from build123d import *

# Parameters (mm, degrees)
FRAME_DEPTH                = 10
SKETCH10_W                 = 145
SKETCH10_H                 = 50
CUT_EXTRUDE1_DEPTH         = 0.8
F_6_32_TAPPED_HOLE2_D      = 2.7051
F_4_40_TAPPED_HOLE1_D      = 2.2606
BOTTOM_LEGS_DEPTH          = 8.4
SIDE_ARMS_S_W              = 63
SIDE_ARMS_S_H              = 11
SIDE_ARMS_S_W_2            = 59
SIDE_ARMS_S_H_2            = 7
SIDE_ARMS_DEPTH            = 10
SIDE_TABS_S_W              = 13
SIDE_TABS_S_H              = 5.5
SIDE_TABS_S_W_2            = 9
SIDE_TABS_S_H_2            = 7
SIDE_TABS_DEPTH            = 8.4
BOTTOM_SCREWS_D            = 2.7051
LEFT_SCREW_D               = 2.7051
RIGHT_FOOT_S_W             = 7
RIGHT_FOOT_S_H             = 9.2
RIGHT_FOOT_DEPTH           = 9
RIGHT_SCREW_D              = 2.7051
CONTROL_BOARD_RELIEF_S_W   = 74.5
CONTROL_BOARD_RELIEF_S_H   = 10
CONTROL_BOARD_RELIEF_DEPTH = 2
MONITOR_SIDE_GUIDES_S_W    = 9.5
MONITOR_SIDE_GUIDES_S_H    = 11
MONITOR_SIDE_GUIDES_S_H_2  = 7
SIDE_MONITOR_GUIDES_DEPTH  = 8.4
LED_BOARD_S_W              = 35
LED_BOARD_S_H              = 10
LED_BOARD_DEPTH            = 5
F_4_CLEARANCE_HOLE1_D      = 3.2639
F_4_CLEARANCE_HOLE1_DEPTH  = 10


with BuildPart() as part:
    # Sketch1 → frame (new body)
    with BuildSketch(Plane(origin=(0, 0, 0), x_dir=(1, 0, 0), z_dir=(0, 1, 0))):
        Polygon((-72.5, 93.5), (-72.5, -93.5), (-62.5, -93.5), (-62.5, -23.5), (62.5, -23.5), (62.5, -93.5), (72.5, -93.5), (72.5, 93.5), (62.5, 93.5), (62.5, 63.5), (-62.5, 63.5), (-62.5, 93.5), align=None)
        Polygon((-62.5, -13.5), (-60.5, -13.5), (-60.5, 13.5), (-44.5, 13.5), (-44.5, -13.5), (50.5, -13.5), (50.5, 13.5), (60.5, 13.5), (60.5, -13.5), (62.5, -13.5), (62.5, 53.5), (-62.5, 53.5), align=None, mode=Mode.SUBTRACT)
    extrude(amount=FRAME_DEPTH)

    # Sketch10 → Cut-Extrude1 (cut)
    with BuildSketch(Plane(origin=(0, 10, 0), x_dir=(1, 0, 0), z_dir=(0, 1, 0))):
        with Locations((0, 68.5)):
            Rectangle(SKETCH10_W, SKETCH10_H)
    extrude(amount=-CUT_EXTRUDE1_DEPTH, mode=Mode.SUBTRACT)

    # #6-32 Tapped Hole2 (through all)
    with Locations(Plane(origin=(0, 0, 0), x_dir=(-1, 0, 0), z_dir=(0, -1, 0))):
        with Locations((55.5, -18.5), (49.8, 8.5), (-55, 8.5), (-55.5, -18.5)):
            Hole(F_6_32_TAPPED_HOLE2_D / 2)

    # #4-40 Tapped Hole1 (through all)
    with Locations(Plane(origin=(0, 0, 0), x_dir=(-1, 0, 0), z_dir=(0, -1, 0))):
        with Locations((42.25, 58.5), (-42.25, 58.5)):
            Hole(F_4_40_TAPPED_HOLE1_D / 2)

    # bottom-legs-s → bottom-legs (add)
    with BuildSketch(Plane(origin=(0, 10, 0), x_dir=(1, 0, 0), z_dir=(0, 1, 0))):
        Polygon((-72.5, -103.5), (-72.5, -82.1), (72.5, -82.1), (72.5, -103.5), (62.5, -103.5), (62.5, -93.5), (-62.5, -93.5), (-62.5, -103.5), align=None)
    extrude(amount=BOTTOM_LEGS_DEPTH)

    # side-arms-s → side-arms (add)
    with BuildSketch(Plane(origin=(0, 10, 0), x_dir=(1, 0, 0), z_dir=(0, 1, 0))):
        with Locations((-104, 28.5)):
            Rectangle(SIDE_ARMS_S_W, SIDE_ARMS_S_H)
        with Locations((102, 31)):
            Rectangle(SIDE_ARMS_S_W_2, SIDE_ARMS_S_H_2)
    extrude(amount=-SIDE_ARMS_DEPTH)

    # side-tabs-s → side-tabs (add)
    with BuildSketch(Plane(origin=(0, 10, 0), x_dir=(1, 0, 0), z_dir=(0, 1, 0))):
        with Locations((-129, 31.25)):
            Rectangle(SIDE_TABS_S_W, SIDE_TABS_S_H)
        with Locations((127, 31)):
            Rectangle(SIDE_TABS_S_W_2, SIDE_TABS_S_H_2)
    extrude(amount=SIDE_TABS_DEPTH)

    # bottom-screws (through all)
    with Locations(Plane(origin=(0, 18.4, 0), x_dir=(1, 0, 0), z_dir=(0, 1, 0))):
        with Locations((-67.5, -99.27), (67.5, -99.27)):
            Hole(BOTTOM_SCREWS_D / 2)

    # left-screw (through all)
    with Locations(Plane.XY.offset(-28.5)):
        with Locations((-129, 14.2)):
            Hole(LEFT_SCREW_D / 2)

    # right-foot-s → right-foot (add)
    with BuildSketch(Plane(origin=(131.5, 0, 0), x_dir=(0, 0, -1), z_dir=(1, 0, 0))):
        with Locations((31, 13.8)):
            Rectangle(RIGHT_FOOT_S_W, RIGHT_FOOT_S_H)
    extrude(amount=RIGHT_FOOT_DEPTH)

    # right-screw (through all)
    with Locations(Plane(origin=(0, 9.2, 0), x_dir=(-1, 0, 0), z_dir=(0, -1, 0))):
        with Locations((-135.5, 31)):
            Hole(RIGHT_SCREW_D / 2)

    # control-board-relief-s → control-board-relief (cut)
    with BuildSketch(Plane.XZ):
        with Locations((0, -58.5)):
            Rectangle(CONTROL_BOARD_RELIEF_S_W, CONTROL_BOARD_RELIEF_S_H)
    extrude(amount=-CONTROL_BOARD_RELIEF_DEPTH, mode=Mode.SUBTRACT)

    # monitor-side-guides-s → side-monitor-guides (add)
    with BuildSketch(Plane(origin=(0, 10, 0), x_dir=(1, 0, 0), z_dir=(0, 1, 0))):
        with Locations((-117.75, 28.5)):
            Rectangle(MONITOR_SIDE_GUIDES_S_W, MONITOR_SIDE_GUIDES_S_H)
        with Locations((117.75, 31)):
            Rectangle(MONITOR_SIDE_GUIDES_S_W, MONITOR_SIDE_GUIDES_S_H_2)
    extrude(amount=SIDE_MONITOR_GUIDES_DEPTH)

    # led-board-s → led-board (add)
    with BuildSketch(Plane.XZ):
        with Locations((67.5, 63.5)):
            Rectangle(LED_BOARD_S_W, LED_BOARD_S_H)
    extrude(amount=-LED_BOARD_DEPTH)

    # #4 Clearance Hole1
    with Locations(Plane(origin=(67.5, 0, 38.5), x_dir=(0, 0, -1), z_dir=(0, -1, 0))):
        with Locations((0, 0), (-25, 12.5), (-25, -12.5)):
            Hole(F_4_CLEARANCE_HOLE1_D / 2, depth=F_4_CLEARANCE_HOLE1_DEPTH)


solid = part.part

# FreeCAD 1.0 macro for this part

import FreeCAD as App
import Part
import Sketcher
from FreeCAD import Vector
Q = App.Units.Quantity

doc = App.newDocument("Part")
body = doc.addObject("PartDesign::Body", "Body")

# Sketch on XZ plane
sketch1 = body.newObject("Sketcher::SketchObject", "Sketch")
sketch1.AttachmentSupport = (doc.getObject("XZ_Plane"), [""])
sketch1.MapMode = "FlatFace"
sketch1.addGeometry(Part.LineSegment(Vector(-72.5, -93.5, 0), Vector(-72.5, 93.5, 0)), False)
sketch1.addGeometry(Part.LineSegment(Vector(-72.5, 93.5, 0), Vector(-62.5, 93.5, 0)), False)
sketch1.addGeometry(Part.LineSegment(Vector(-62.5, 93.5, 0), Vector(-62.5, 23.5, 0)), False)
sketch1.addGeometry(Part.LineSegment(Vector(-62.5, 23.5, 0), Vector(62.5, 23.5, 0)), False)
sketch1.addGeometry(Part.LineSegment(Vector(62.5, 23.5, 0), Vector(62.5, 93.5, 0)), False)
sketch1.addGeometry(Part.LineSegment(Vector(62.5, 93.5, 0), Vector(72.5, 93.5, 0)), False)
sketch1.addGeometry(Part.LineSegment(Vector(72.5, 93.5, 0), Vector(72.5, -93.5, 0)), False)
sketch1.addGeometry(Part.LineSegment(Vector(72.5, -93.5, 0), Vector(62.5, -93.5, 0)), False)
sketch1.addGeometry(Part.LineSegment(Vector(62.5, -93.5, 0), Vector(62.5, -63.5, 0)), False)
sketch1.addGeometry(Part.LineSegment(Vector(62.5, -63.5, 0), Vector(-62.5, -63.5, 0)), False)
sketch1.addGeometry(Part.LineSegment(Vector(-62.5, -63.5, 0), Vector(-62.5, -93.5, 0)), False)
sketch1.addGeometry(Part.LineSegment(Vector(-62.5, -93.5, 0), Vector(-72.5, -93.5, 0)), False)
sketch1.addGeometry(Part.LineSegment(Vector(-60.5, 13.5, 0), Vector(-62.5, 13.5, 0)), False)
sketch1.addGeometry(Part.LineSegment(Vector(-62.5, 13.5, 0), Vector(-62.5, -53.5, 0)), False)
sketch1.addGeometry(Part.LineSegment(Vector(-62.5, -53.5, 0), Vector(62.5, -53.5, 0)), False)
sketch1.addGeometry(Part.LineSegment(Vector(62.5, -53.5, 0), Vector(62.5, 13.5, 0)), False)
sketch1.addGeometry(Part.LineSegment(Vector(62.5, 13.5, 0), Vector(60.5, 13.5, 0)), False)
sketch1.addGeometry(Part.LineSegment(Vector(60.5, 13.5, 0), Vector(60.5, -13.5, 0)), False)
sketch1.addGeometry(Part.LineSegment(Vector(60.5, -13.5, 0), Vector(50.5, -13.5, 0)), False)
sketch1.addGeometry(Part.LineSegment(Vector(50.5, -13.5, 0), Vector(50.5, 13.5, 0)), False)
sketch1.addGeometry(Part.LineSegment(Vector(50.5, 13.5, 0), Vector(-44.5, 13.5, 0)), False)
sketch1.addGeometry(Part.LineSegment(Vector(-44.5, 13.5, 0), Vector(-44.5, -13.5, 0)), False)
sketch1.addGeometry(Part.LineSegment(Vector(-44.5, -13.5, 0), Vector(-60.5, -13.5, 0)), False)
sketch1.addGeometry(Part.LineSegment(Vector(-60.5, -13.5, 0), Vector(-60.5, 13.5, 0)), False)
sketch1.addConstraint(Sketcher.Constraint("Coincident", 0, 2, 1, 1))
sketch1.addConstraint(Sketcher.Constraint("Coincident", 1, 2, 2, 1))
sketch1.addConstraint(Sketcher.Constraint("Coincident", 2, 2, 3, 1))
sketch1.addConstraint(Sketcher.Constraint("Coincident", 3, 2, 4, 1))
sketch1.addConstraint(Sketcher.Constraint("Coincident", 4, 2, 5, 1))
sketch1.addConstraint(Sketcher.Constraint("Coincident", 5, 2, 6, 1))
sketch1.addConstraint(Sketcher.Constraint("Coincident", 6, 2, 7, 1))
sketch1.addConstraint(Sketcher.Constraint("Coincident", 7, 2, 8, 1))
sketch1.addConstraint(Sketcher.Constraint("Coincident", 8, 2, 9, 1))
sketch1.addConstraint(Sketcher.Constraint("Coincident", 9, 2, 10, 1))
sketch1.addConstraint(Sketcher.Constraint("Coincident", 10, 2, 11, 1))
sketch1.addConstraint(Sketcher.Constraint("Coincident", 11, 2, 0, 1))
sketch1.addConstraint(Sketcher.Constraint("Coincident", 12, 2, 13, 1))
sketch1.addConstraint(Sketcher.Constraint("Coincident", 13, 2, 14, 1))
sketch1.addConstraint(Sketcher.Constraint("Coincident", 14, 2, 15, 1))
sketch1.addConstraint(Sketcher.Constraint("Coincident", 15, 2, 16, 1))
sketch1.addConstraint(Sketcher.Constraint("Coincident", 16, 2, 17, 1))
sketch1.addConstraint(Sketcher.Constraint("Coincident", 17, 2, 18, 1))
sketch1.addConstraint(Sketcher.Constraint("Coincident", 18, 2, 19, 1))
sketch1.addConstraint(Sketcher.Constraint("Coincident", 19, 2, 20, 1))
sketch1.addConstraint(Sketcher.Constraint("Coincident", 20, 2, 21, 1))
sketch1.addConstraint(Sketcher.Constraint("Coincident", 21, 2, 22, 1))
sketch1.addConstraint(Sketcher.Constraint("Coincident", 22, 2, 23, 1))
sketch1.addConstraint(Sketcher.Constraint("Coincident", 23, 2, 12, 1))
sketch1.addConstraint(Sketcher.Constraint("Vertical", 0))
sketch1.addConstraint(Sketcher.Constraint("Horizontal", 1))
sketch1.addConstraint(Sketcher.Constraint("Vertical", 2))
sketch1.addConstraint(Sketcher.Constraint("Horizontal", 3))
sketch1.addConstraint(Sketcher.Constraint("Vertical", 4))
sketch1.addConstraint(Sketcher.Constraint("Horizontal", 5))
sketch1.addConstraint(Sketcher.Constraint("Vertical", 6))
sketch1.addConstraint(Sketcher.Constraint("Horizontal", 7))
sketch1.addConstraint(Sketcher.Constraint("Vertical", 8))
sketch1.addConstraint(Sketcher.Constraint("Horizontal", 9))
sketch1.addConstraint(Sketcher.Constraint("Vertical", 10))
sketch1.addConstraint(Sketcher.Constraint("Horizontal", 11))
sketch1.addConstraint(Sketcher.Constraint("Horizontal", 12))
sketch1.addConstraint(Sketcher.Constraint("Vertical", 13))
sketch1.addConstraint(Sketcher.Constraint("Horizontal", 14))
sketch1.addConstraint(Sketcher.Constraint("Vertical", 15))
sketch1.addConstraint(Sketcher.Constraint("Horizontal", 16))
sketch1.addConstraint(Sketcher.Constraint("Vertical", 17))
sketch1.addConstraint(Sketcher.Constraint("Horizontal", 18))
sketch1.addConstraint(Sketcher.Constraint("Vertical", 19))
sketch1.addConstraint(Sketcher.Constraint("Horizontal", 20))
sketch1.addConstraint(Sketcher.Constraint("Vertical", 21))
sketch1.addConstraint(Sketcher.Constraint("Horizontal", 22))
sketch1.addConstraint(Sketcher.Constraint("Vertical", 23))
sketch1.addConstraint(Sketcher.Constraint("Symmetric", 0, 2, 6, 2, -1, 1))
sketch1.addConstraint(Sketcher.Constraint("Symmetric", 4, 2, 10, 2, -1, 1))
sketch1.addConstraint(Sketcher.Constraint("Symmetric", 16, 2, 22, 2, -1, 1))
sketch1.addConstraint(Sketcher.Constraint("Symmetric", 1, 2, 4, 2, -2))
sketch1.addConstraint(Sketcher.Constraint("Symmetric", 12, 2, 15, 2, -2))
sketch1.addConstraint(Sketcher.Constraint("Horizontal", 16, 2, 19, 2))
sketch1.addConstraint(Sketcher.Constraint("Horizontal", 18, 2, 21, 2))
sketch1.addConstraint(Sketcher.Constraint("Vertical", 4, 2, 7, 2))
sketch1.addConstraint(Sketcher.Constraint("Vertical", 10, 2, 12, 2))
sketch1.addConstraint(Sketcher.Constraint("Equal", 11, 18))
sketch1.addConstraint(Sketcher.Constraint("DistanceX", 1, 1, 1, 2, Q("10 mm")))
sketch1.addConstraint(Sketcher.Constraint("DistanceX", 3, 1, 3, 2, Q("125 mm")))
sketch1.addConstraint(Sketcher.Constraint("DistanceX", 12, 2, 12, 1, Q("2 mm")))
sketch1.addConstraint(Sketcher.Constraint("DistanceX", 20, 2, 20, 1, Q("95 mm")))
sketch1.addConstraint(Sketcher.Constraint("DistanceY", 0, 1, 0, 2, Q("187 mm")))
sketch1.addConstraint(Sketcher.Constraint("DistanceY", 2, 2, 2, 1, Q("70 mm")))
sketch1.addConstraint(Sketcher.Constraint("DistanceY", 8, 1, 8, 2, Q("30 mm")))
sketch1.addConstraint(Sketcher.Constraint("DistanceY", 13, 2, 13, 1, Q("67 mm")))
sketch1.addConstraint(Sketcher.Constraint("DistanceY", 17, 2, 17, 1, Q("27 mm")))
pad1 = body.newObject("PartDesign::Pad", "Pad")
pad1.Profile = sketch1
pad1.Length = 10
pad1.Reversed = True

# Sketch on XZ plane
sketch2 = body.newObject("Sketcher::SketchObject", "Sketch001")
sketch2.AttachmentSupport = (doc.getObject("XZ_Plane"), [""])
sketch2.MapMode = "FlatFace"
sketch2.AttachmentOffset = App.Placement(Vector(0, 0, -10), App.Rotation())
sketch2.addGeometry(Part.LineSegment(Vector(-72.5, -93.5, 0), Vector(-72.5, -43.5, 0)), False)
sketch2.addGeometry(Part.LineSegment(Vector(-72.5, -43.5, 0), Vector(72.5, -43.5, 0)), False)
sketch2.addGeometry(Part.LineSegment(Vector(72.5, -43.5, 0), Vector(72.5, -93.5, 0)), False)
sketch2.addGeometry(Part.LineSegment(Vector(72.5, -93.5, 0), Vector(-72.5, -93.5, 0)), False)
sketch2.addConstraint(Sketcher.Constraint("Coincident", 0, 2, 1, 1))
sketch2.addConstraint(Sketcher.Constraint("Coincident", 1, 2, 2, 1))
sketch2.addConstraint(Sketcher.Constraint("Coincident", 2, 2, 3, 1))
sketch2.addConstraint(Sketcher.Constraint("Coincident", 3, 2, 0, 1))
sketch2.addConstraint(Sketcher.Constraint("Vertical", 0))
sketch2.addConstraint(Sketcher.Constraint("Horizontal", 1))
sketch2.addConstraint(Sketcher.Constraint("Vertical", 2))
sketch2.addConstraint(Sketcher.Constraint("Horizontal", 3))
sketch2.addConstraint(Sketcher.Constraint("DistanceX", 1, 1, 1, 2, Q("145 mm")))
sketch2.addConstraint(Sketcher.Constraint("DistanceY", 0, 1, 0, 2, Q("50 mm")))
sketch2.addConstraint(Sketcher.Constraint("DistanceX", 0, 2, -1, 1, Q("72.5 mm")))
sketch2.addConstraint(Sketcher.Constraint("DistanceY", 0, 2, -1, 1, Q("43.5 mm")))
pocket1 = body.newObject("PartDesign::Pocket", "Pocket")
pocket1.Profile = sketch2
pocket1.Length = 0.8
pocket1.Reversed = True

# Sketch on XZ plane
sketch3 = body.newObject("Sketcher::SketchObject", "Sketch002")
sketch3.AttachmentSupport = (doc.getObject("XZ_Plane"), [""])
sketch3.MapMode = "FlatFace"
sketch3.addGeometry(Part.Circle(Vector(-55.5, 18.5, 0), Vector(0, 0, 1), 1.35255), False)
sketch3.addGeometry(Part.Circle(Vector(-49.8, -8.5, 0), Vector(0, 0, 1), 1.35255), False)
sketch3.addGeometry(Part.Circle(Vector(55, -8.5, 0), Vector(0, 0, 1), 1.35255), False)
sketch3.addGeometry(Part.Circle(Vector(55.5, 18.5, 0), Vector(0, 0, 1), 1.35255), False)
sketch3.addConstraint(Sketcher.Constraint("Equal", 0, 1))
sketch3.addConstraint(Sketcher.Constraint("Equal", 1, 2))
sketch3.addConstraint(Sketcher.Constraint("Equal", 2, 3))
sketch3.addConstraint(Sketcher.Constraint("Symmetric", 0, 3, 3, 3, -2))
sketch3.addConstraint(Sketcher.Constraint("Horizontal", 1, 3, 2, 3))
sketch3.addConstraint(Sketcher.Constraint("DistanceX", -1, 1, 2, 3, Q("55 mm")))
sketch3.addConstraint(Sketcher.Constraint("DistanceY", 1, 3, 0, 3, Q("27 mm")))
sketch3.addConstraint(Sketcher.Constraint("DistanceX", 0, 3, 3, 3, Q("111 mm")))
sketch3.addConstraint(Sketcher.Constraint("Diameter", 0, Q("2.7051 mm")))
sketch3.addConstraint(Sketcher.Constraint("DistanceY", -1, 1, 0, 3, Q("18.5 mm")))
sketch3.addConstraint(Sketcher.Constraint("DistanceX", 1, 3, -1, 1, Q("49.8 mm")))
doc.recompute()
hole = body.newObject("PartDesign::Hole", "Hole")
hole.Profile = sketch3
hole.ThreadType = "None"
hole.Diameter = 2.7051
hole.DepthType = "ThroughAll"

# Sketch on XZ plane
sketch4 = body.newObject("Sketcher::SketchObject", "Sketch003")
sketch4.AttachmentSupport = (doc.getObject("XZ_Plane"), [""])
sketch4.MapMode = "FlatFace"
sketch4.addGeometry(Part.Circle(Vector(-42.25, -58.5, 0), Vector(0, 0, 1), 1.1303), False)
sketch4.addGeometry(Part.Circle(Vector(42.25, -58.5, 0), Vector(0, 0, 1), 1.1303), False)
sketch4.addConstraint(Sketcher.Constraint("Equal", 0, 1))
sketch4.addConstraint(Sketcher.Constraint("Symmetric", 0, 3, 1, 3, -2))
sketch4.addConstraint(Sketcher.Constraint("Diameter", 0, Q("2.2606 mm")))
sketch4.addConstraint(Sketcher.Constraint("DistanceY", 0, 3, -1, 1, Q("58.5 mm")))
sketch4.addConstraint(Sketcher.Constraint("DistanceX", 0, 3, 1, 3, Q("84.5 mm")))
doc.recompute()
hole2 = body.newObject("PartDesign::Hole", "Hole001")
hole2.Profile = sketch4
hole2.ThreadType = "None"
hole2.Diameter = 2.2606
hole2.DepthType = "ThroughAll"

# Sketch on XZ plane
sketch5 = body.newObject("Sketcher::SketchObject", "Sketch004")
sketch5.AttachmentSupport = (doc.getObject("XZ_Plane"), [""])
sketch5.MapMode = "FlatFace"
sketch5.AttachmentOffset = App.Placement(Vector(0, 0, -10), App.Rotation())
sketch5.addGeometry(Part.LineSegment(Vector(-72.5, 82.1, 0), Vector(-72.5, 103.5, 0)), False)
sketch5.addGeometry(Part.LineSegment(Vector(-72.5, 103.5, 0), Vector(-62.5, 103.5, 0)), False)
sketch5.addGeometry(Part.LineSegment(Vector(-62.5, 103.5, 0), Vector(-62.5, 93.5, 0)), False)
sketch5.addGeometry(Part.LineSegment(Vector(-62.5, 93.5, 0), Vector(62.5, 93.5, 0)), False)
sketch5.addGeometry(Part.LineSegment(Vector(62.5, 93.5, 0), Vector(62.5, 103.5, 0)), False)
sketch5.addGeometry(Part.LineSegment(Vector(62.5, 103.5, 0), Vector(72.5, 103.5, 0)), False)
sketch5.addGeometry(Part.LineSegment(Vector(72.5, 103.5, 0), Vector(72.5, 82.1, 0)), False)
sketch5.addGeometry(Part.LineSegment(Vector(72.5, 82.1, 0), Vector(-72.5, 82.1, 0)), False)
sketch5.addConstraint(Sketcher.Constraint("Coincident", 0, 2, 1, 1))
sketch5.addConstraint(Sketcher.Constraint("Coincident", 1, 2, 2, 1))
sketch5.addConstraint(Sketcher.Constraint("Coincident", 2, 2, 3, 1))
sketch5.addConstraint(Sketcher.Constraint("Coincident", 3, 2, 4, 1))
sketch5.addConstraint(Sketcher.Constraint("Coincident", 4, 2, 5, 1))
sketch5.addConstraint(Sketcher.Constraint("Coincident", 5, 2, 6, 1))
sketch5.addConstraint(Sketcher.Constraint("Coincident", 6, 2, 7, 1))
sketch5.addConstraint(Sketcher.Constraint("Coincident", 7, 2, 0, 1))
sketch5.addConstraint(Sketcher.Constraint("Vertical", 0))
sketch5.addConstraint(Sketcher.Constraint("Horizontal", 1))
sketch5.addConstraint(Sketcher.Constraint("Vertical", 2))
sketch5.addConstraint(Sketcher.Constraint("Horizontal", 3))
sketch5.addConstraint(Sketcher.Constraint("Vertical", 4))
sketch5.addConstraint(Sketcher.Constraint("Horizontal", 5))
sketch5.addConstraint(Sketcher.Constraint("Vertical", 6))
sketch5.addConstraint(Sketcher.Constraint("Horizontal", 7))
sketch5.addConstraint(Sketcher.Constraint("Symmetric", 1, 2, 4, 2, -2))
sketch5.addConstraint(Sketcher.Constraint("Equal", 1, 5))
sketch5.addConstraint(Sketcher.Constraint("Equal", 5, 2))
sketch5.addConstraint(Sketcher.Constraint("DistanceX", 1, 1, 1, 2, Q("10 mm")))
sketch5.addConstraint(Sketcher.Constraint("DistanceX", 3, 1, 3, 2, Q("125 mm")))
sketch5.addConstraint(Sketcher.Constraint("DistanceY", 0, 1, 0, 2, Q("21.4 mm")))
sketch5.addConstraint(Sketcher.Constraint("DistanceY", -1, 1, 0, 2, Q("103.5 mm")))
pad2 = body.newObject("PartDesign::Pad", "Pad001")
pad2.Profile = sketch5
pad2.Length = 8.4
pad2.Reversed = True

# Sketch on XZ plane
sketch6 = body.newObject("Sketcher::SketchObject", "Sketch005")
sketch6.AttachmentSupport = (doc.getObject("XZ_Plane"), [""])
sketch6.MapMode = "FlatFace"
sketch6.AttachmentOffset = App.Placement(Vector(0, 0, -10), App.Rotation())
sketch6.addGeometry(Part.LineSegment(Vector(-135.5, -34, 0), Vector(-135.5, -23, 0)), False)
sketch6.addGeometry(Part.LineSegment(Vector(-135.5, -23, 0), Vector(-72.5, -23, 0)), False)
sketch6.addGeometry(Part.LineSegment(Vector(-72.5, -23, 0), Vector(-72.5, -34, 0)), False)
sketch6.addGeometry(Part.LineSegment(Vector(-72.5, -34, 0), Vector(-135.5, -34, 0)), False)
sketch6.addGeometry(Part.LineSegment(Vector(72.5, -34.5, 0), Vector(72.5, -27.5, 0)), False)
sketch6.addGeometry(Part.LineSegment(Vector(72.5, -27.5, 0), Vector(131.5, -27.5, 0)), False)
sketch6.addGeometry(Part.LineSegment(Vector(131.5, -27.5, 0), Vector(131.5, -34.5, 0)), False)
sketch6.addGeometry(Part.LineSegment(Vector(131.5, -34.5, 0), Vector(72.5, -34.5, 0)), False)
sketch6.addConstraint(Sketcher.Constraint("Coincident", 0, 2, 1, 1))
sketch6.addConstraint(Sketcher.Constraint("Coincident", 1, 2, 2, 1))
sketch6.addConstraint(Sketcher.Constraint("Coincident", 2, 2, 3, 1))
sketch6.addConstraint(Sketcher.Constraint("Coincident", 3, 2, 0, 1))
sketch6.addConstraint(Sketcher.Constraint("Coincident", 4, 2, 5, 1))
sketch6.addConstraint(Sketcher.Constraint("Coincident", 5, 2, 6, 1))
sketch6.addConstraint(Sketcher.Constraint("Coincident", 6, 2, 7, 1))
sketch6.addConstraint(Sketcher.Constraint("Coincident", 7, 2, 4, 1))
sketch6.addConstraint(Sketcher.Constraint("Vertical", 0))
sketch6.addConstraint(Sketcher.Constraint("Horizontal", 1))
sketch6.addConstraint(Sketcher.Constraint("Vertical", 2))
sketch6.addConstraint(Sketcher.Constraint("Horizontal", 3))
sketch6.addConstraint(Sketcher.Constraint("Vertical", 4))
sketch6.addConstraint(Sketcher.Constraint("Horizontal", 5))
sketch6.addConstraint(Sketcher.Constraint("Vertical", 6))
sketch6.addConstraint(Sketcher.Constraint("Horizontal", 7))
sketch6.addConstraint(Sketcher.Constraint("DistanceX", 1, 1, 1, 2, Q("63 mm")))
sketch6.addConstraint(Sketcher.Constraint("DistanceX", 5, 1, 5, 2, Q("59 mm")))
sketch6.addConstraint(Sketcher.Constraint("DistanceY", 0, 1, 0, 2, Q("11 mm")))
sketch6.addConstraint(Sketcher.Constraint("DistanceY", 4, 1, 4, 2, Q("7 mm")))
sketch6.addConstraint(Sketcher.Constraint("DistanceY", 0, 2, -1, 1, Q("23 mm")))
sketch6.addConstraint(Sketcher.Constraint("DistanceX", 1, 2, 4, 2, Q("145 mm")))
sketch6.addConstraint(Sketcher.Constraint("DistanceX", 0, 2, -1, 1, Q("135.5 mm")))
sketch6.addConstraint(Sketcher.Constraint("DistanceY", 4, 2, -1, 1, Q("27.5 mm")))
pad3 = body.newObject("PartDesign::Pad", "Pad002")
pad3.Profile = sketch6
pad3.Length = 10

# Sketch on XZ plane
sketch7 = body.newObject("Sketcher::SketchObject", "Sketch006")
sketch7.AttachmentSupport = (doc.getObject("XZ_Plane"), [""])
sketch7.MapMode = "FlatFace"
sketch7.AttachmentOffset = App.Placement(Vector(0, 0, -10), App.Rotation())
sketch7.addGeometry(Part.LineSegment(Vector(-135.5, -34, 0), Vector(-135.5, -28.5, 0)), False)
sketch7.addGeometry(Part.LineSegment(Vector(-135.5, -28.5, 0), Vector(-122.5, -28.5, 0)), False)
sketch7.addGeometry(Part.LineSegment(Vector(-122.5, -28.5, 0), Vector(-122.5, -34, 0)), False)
sketch7.addGeometry(Part.LineSegment(Vector(-122.5, -34, 0), Vector(-135.5, -34, 0)), False)
sketch7.addGeometry(Part.LineSegment(Vector(122.5, -34.5, 0), Vector(122.5, -27.5, 0)), False)
sketch7.addGeometry(Part.LineSegment(Vector(122.5, -27.5, 0), Vector(131.5, -27.5, 0)), False)
sketch7.addGeometry(Part.LineSegment(Vector(131.5, -27.5, 0), Vector(131.5, -34.5, 0)), False)
sketch7.addGeometry(Part.LineSegment(Vector(131.5, -34.5, 0), Vector(122.5, -34.5, 0)), False)
sketch7.addConstraint(Sketcher.Constraint("Coincident", 0, 2, 1, 1))
sketch7.addConstraint(Sketcher.Constraint("Coincident", 1, 2, 2, 1))
sketch7.addConstraint(Sketcher.Constraint("Coincident", 2, 2, 3, 1))
sketch7.addConstraint(Sketcher.Constraint("Coincident", 3, 2, 0, 1))
sketch7.addConstraint(Sketcher.Constraint("Coincident", 4, 2, 5, 1))
sketch7.addConstraint(Sketcher.Constraint("Coincident", 5, 2, 6, 1))
sketch7.addConstraint(Sketcher.Constraint("Coincident", 6, 2, 7, 1))
sketch7.addConstraint(Sketcher.Constraint("Coincident", 7, 2, 4, 1))
sketch7.addConstraint(Sketcher.Constraint("Vertical", 0))
sketch7.addConstraint(Sketcher.Constraint("Horizontal", 1))
sketch7.addConstraint(Sketcher.Constraint("Vertical", 2))
sketch7.addConstraint(Sketcher.Constraint("Horizontal", 3))
sketch7.addConstraint(Sketcher.Constraint("Vertical", 4))
sketch7.addConstraint(Sketcher.Constraint("Horizontal", 5))
sketch7.addConstraint(Sketcher.Constraint("Vertical", 6))
sketch7.addConstraint(Sketcher.Constraint("Horizontal", 7))
sketch7.addConstraint(Sketcher.Constraint("DistanceX", 1, 1, 1, 2, Q("13 mm")))
sketch7.addConstraint(Sketcher.Constraint("DistanceX", 5, 1, 5, 2, Q("9 mm")))
sketch7.addConstraint(Sketcher.Constraint("DistanceY", 4, 1, 4, 2, Q("7 mm")))
sketch7.addConstraint(Sketcher.Constraint("DistanceY", 0, 1, 0, 2, Q("5.5 mm")))
sketch7.addConstraint(Sketcher.Constraint("DistanceY", 2, 2, -1, 1, Q("34 mm")))
sketch7.addConstraint(Sketcher.Constraint("DistanceX", 1, 2, 4, 2, Q("245 mm")))
sketch7.addConstraint(Sketcher.Constraint("DistanceY", 1, 2, 4, 2, Q("1 mm")))
sketch7.addConstraint(Sketcher.Constraint("DistanceX", 0, 2, -1, 1, Q("135.5 mm")))
pad4 = body.newObject("PartDesign::Pad", "Pad003")
pad4.Profile = sketch7
pad4.Length = 8.4
pad4.Reversed = True

# Sketch on XZ plane
sketch8 = body.newObject("Sketcher::SketchObject", "Sketch007")
sketch8.AttachmentSupport = (doc.getObject("XZ_Plane"), [""])
sketch8.MapMode = "FlatFace"
sketch8.AttachmentOffset = App.Placement(Vector(0, 0, -18.4), App.Rotation())
sketch8.addGeometry(Part.Circle(Vector(-67.5, 99.27, 0), Vector(0, 0, 1), 1.35255), False)
sketch8.addGeometry(Part.Circle(Vector(67.5, 99.27, 0), Vector(0, 0, 1), 1.35255), False)
sketch8.addConstraint(Sketcher.Constraint("Equal", 0, 1))
sketch8.addConstraint(Sketcher.Constraint("Symmetric", 0, 3, 1, 3, -2))
sketch8.addConstraint(Sketcher.Constraint("DistanceX", 0, 3, 1, 3, Q("135 mm")))
sketch8.addConstraint(Sketcher.Constraint("Diameter", 0, Q("2.7051 mm")))
sketch8.addConstraint(Sketcher.Constraint("DistanceY", -1, 1, 0, 3, Q("99.27 mm")))
doc.recompute()
hole3 = body.newObject("PartDesign::Hole", "Hole002")
hole3.Profile = sketch8
hole3.ThreadType = "None"
hole3.Diameter = 2.7051
hole3.DepthType = "ThroughAll"
hole3.Reversed = True

# Sketch on XY plane
sketch9 = body.newObject("Sketcher::SketchObject", "Sketch008")
sketch9.AttachmentSupport = (doc.getObject("XY_Plane"), [""])
sketch9.MapMode = "FlatFace"
sketch9.AttachmentOffset = App.Placement(Vector(0, 0, -28.5), App.Rotation())
sketch9.addGeometry(Part.Circle(Vector(-129, 14.2, 0), Vector(0, 0, 1), 1.35255), False)
sketch9.addConstraint(Sketcher.Constraint("DistanceX", 0, 3, -1, 1, Q("129 mm")))
sketch9.addConstraint(Sketcher.Constraint("Diameter", 0, Q("2.7051 mm")))
sketch9.addConstraint(Sketcher.Constraint("DistanceY", -1, 1, 0, 3, Q("14.2 mm")))
doc.recompute()
hole4 = body.newObject("PartDesign::Hole", "Hole003")
hole4.Profile = sketch9
hole4.ThreadType = "None"
hole4.Diameter = 2.7051
hole4.DepthType = "ThroughAll"

# Sketch on YZ plane
sketch10 = body.newObject("Sketcher::SketchObject", "Sketch009")
sketch10.AttachmentSupport = (doc.getObject("YZ_Plane"), [""])
sketch10.MapMode = "FlatFace"
sketch10.AttachmentOffset = App.Placement(Vector(0, 0, 131.5), App.Rotation())
sketch10.addGeometry(Part.LineSegment(Vector(18.4, -27.5, 0), Vector(9.2, -27.5, 0)), False)
sketch10.addGeometry(Part.LineSegment(Vector(9.2, -27.5, 0), Vector(9.2, -34.5, 0)), False)
sketch10.addGeometry(Part.LineSegment(Vector(9.2, -34.5, 0), Vector(18.4, -34.5, 0)), False)
sketch10.addGeometry(Part.LineSegment(Vector(18.4, -34.5, 0), Vector(18.4, -27.5, 0)), False)
sketch10.addConstraint(Sketcher.Constraint("Coincident", 0, 2, 1, 1))
sketch10.addConstraint(Sketcher.Constraint("Coincident", 1, 2, 2, 1))
sketch10.addConstraint(Sketcher.Constraint("Coincident", 2, 2, 3, 1))
sketch10.addConstraint(Sketcher.Constraint("Coincident", 3, 2, 0, 1))
sketch10.addConstraint(Sketcher.Constraint("Horizontal", 0))
sketch10.addConstraint(Sketcher.Constraint("Vertical", 1))
sketch10.addConstraint(Sketcher.Constraint("Horizontal", 2))
sketch10.addConstraint(Sketcher.Constraint("Vertical", 3))
sketch10.addConstraint(Sketcher.Constraint("DistanceY", 1, 2, 1, 1, Q("7 mm")))
sketch10.addConstraint(Sketcher.Constraint("DistanceX", 0, 2, 0, 1, Q("9.2 mm")))
sketch10.addConstraint(Sketcher.Constraint("DistanceX", -1, 1, 0, 2, Q("9.2 mm")))
sketch10.addConstraint(Sketcher.Constraint("DistanceY", 0, 2, -1, 1, Q("27.5 mm")))
pad5 = body.newObject("PartDesign::Pad", "Pad004")
pad5.Profile = sketch10
pad5.Length = 9

# Sketch on XZ plane
sketch11 = body.newObject("Sketcher::SketchObject", "Sketch010")
sketch11.AttachmentSupport = (doc.getObject("XZ_Plane"), [""])
sketch11.MapMode = "FlatFace"
sketch11.AttachmentOffset = App.Placement(Vector(0, 0, -9.2), App.Rotation())
sketch11.addGeometry(Part.Circle(Vector(135.5, -31, 0), Vector(0, 0, 1), 1.35255), False)
sketch11.addConstraint(Sketcher.Constraint("DistanceY", 0, 3, -1, 1, Q("31 mm")))
sketch11.addConstraint(Sketcher.Constraint("Diameter", 0, Q("2.7051 mm")))
sketch11.addConstraint(Sketcher.Constraint("DistanceX", -1, 1, 0, 3, Q("135.5 mm")))
doc.recompute()
hole5 = body.newObject("PartDesign::Hole", "Hole004")
hole5.Profile = sketch11
hole5.ThreadType = "None"
hole5.Diameter = 2.7051
hole5.DepthType = "ThroughAll"

# Sketch on XZ plane
sketch12 = body.newObject("Sketcher::SketchObject", "Sketch011")
sketch12.AttachmentSupport = (doc.getObject("XZ_Plane"), [""])
sketch12.MapMode = "FlatFace"
sketch12.addGeometry(Part.LineSegment(Vector(-37.25, -53.5, 0), Vector(-37.25, -63.5, 0)), False)
sketch12.addGeometry(Part.LineSegment(Vector(-37.25, -63.5, 0), Vector(37.25, -63.5, 0)), False)
sketch12.addGeometry(Part.LineSegment(Vector(37.25, -63.5, 0), Vector(37.25, -53.5, 0)), False)
sketch12.addGeometry(Part.LineSegment(Vector(37.25, -53.5, 0), Vector(-37.25, -53.5, 0)), False)
sketch12.addConstraint(Sketcher.Constraint("Coincident", 0, 2, 1, 1))
sketch12.addConstraint(Sketcher.Constraint("Coincident", 1, 2, 2, 1))
sketch12.addConstraint(Sketcher.Constraint("Coincident", 2, 2, 3, 1))
sketch12.addConstraint(Sketcher.Constraint("Coincident", 3, 2, 0, 1))
sketch12.addConstraint(Sketcher.Constraint("Vertical", 0))
sketch12.addConstraint(Sketcher.Constraint("Horizontal", 1))
sketch12.addConstraint(Sketcher.Constraint("Vertical", 2))
sketch12.addConstraint(Sketcher.Constraint("Horizontal", 3))
sketch12.addConstraint(Sketcher.Constraint("DistanceY", 0, 2, 0, 1, Q("10 mm")))
sketch12.addConstraint(Sketcher.Constraint("DistanceX", 1, 1, 1, 2, Q("74.5 mm")))
sketch12.addConstraint(Sketcher.Constraint("DistanceY", 0, 2, -1, 1, Q("63.5 mm")))
sketch12.addConstraint(Sketcher.Constraint("DistanceX", 0, 2, -1, 1, Q("37.25 mm")))
pocket2 = body.newObject("PartDesign::Pocket", "Pocket001")
pocket2.Profile = sketch12
pocket2.Length = 2

# Sketch on XZ plane
sketch13 = body.newObject("Sketcher::SketchObject", "Sketch012")
sketch13.AttachmentSupport = (doc.getObject("XZ_Plane"), [""])
sketch13.MapMode = "FlatFace"
sketch13.AttachmentOffset = App.Placement(Vector(0, 0, -10), App.Rotation())
sketch13.addGeometry(Part.LineSegment(Vector(-122.5, -34, 0), Vector(-122.5, -23, 0)), False)
sketch13.addGeometry(Part.LineSegment(Vector(-122.5, -23, 0), Vector(-113, -23, 0)), False)
sketch13.addGeometry(Part.LineSegment(Vector(-113, -23, 0), Vector(-113, -34, 0)), False)
sketch13.addGeometry(Part.LineSegment(Vector(-113, -34, 0), Vector(-122.5, -34, 0)), False)
sketch13.addGeometry(Part.LineSegment(Vector(113, -34.5, 0), Vector(113, -27.5, 0)), False)
sketch13.addGeometry(Part.LineSegment(Vector(113, -27.5, 0), Vector(122.5, -27.5, 0)), False)
sketch13.addGeometry(Part.LineSegment(Vector(122.5, -27.5, 0), Vector(122.5, -34.5, 0)), False)
sketch13.addGeometry(Part.LineSegment(Vector(122.5, -34.5, 0), Vector(113, -34.5, 0)), False)
sketch13.addConstraint(Sketcher.Constraint("Coincident", 0, 2, 1, 1))
sketch13.addConstraint(Sketcher.Constraint("Coincident", 1, 2, 2, 1))
sketch13.addConstraint(Sketcher.Constraint("Coincident", 2, 2, 3, 1))
sketch13.addConstraint(Sketcher.Constraint("Coincident", 3, 2, 0, 1))
sketch13.addConstraint(Sketcher.Constraint("Coincident", 4, 2, 5, 1))
sketch13.addConstraint(Sketcher.Constraint("Coincident", 5, 2, 6, 1))
sketch13.addConstraint(Sketcher.Constraint("Coincident", 6, 2, 7, 1))
sketch13.addConstraint(Sketcher.Constraint("Coincident", 7, 2, 4, 1))
sketch13.addConstraint(Sketcher.Constraint("Vertical", 0))
sketch13.addConstraint(Sketcher.Constraint("Horizontal", 1))
sketch13.addConstraint(Sketcher.Constraint("Vertical", 2))
sketch13.addConstraint(Sketcher.Constraint("Horizontal", 3))
sketch13.addConstraint(Sketcher.Constraint("Vertical", 4))
sketch13.addConstraint(Sketcher.Constraint("Horizontal", 5))
sketch13.addConstraint(Sketcher.Constraint("Vertical", 6))
sketch13.addConstraint(Sketcher.Constraint("Horizontal", 7))
sketch13.addConstraint(Sketcher.Constraint("Equal", 3, 5))
sketch13.addConstraint(Sketcher.Constraint("DistanceY", 0, 1, 0, 2, Q("11 mm")))
sketch13.addConstraint(Sketcher.Constraint("DistanceY", 4, 1, 4, 2, Q("7 mm")))
sketch13.addConstraint(Sketcher.Constraint("DistanceX", 1, 1, 1, 2, Q("9.5 mm")))
sketch13.addConstraint(Sketcher.Constraint("DistanceY", 0, 2, -1, 1, Q("23 mm")))
sketch13.addConstraint(Sketcher.Constraint("DistanceX", 1, 2, -1, 1, Q("113 mm")))
sketch13.addConstraint(Sketcher.Constraint("DistanceX", -1, 1, 4, 2, Q("113 mm")))
sketch13.addConstraint(Sketcher.Constraint("DistanceY", 4, 2, -1, 1, Q("27.5 mm")))
pad6 = body.newObject("PartDesign::Pad", "Pad005")
pad6.Profile = sketch13
pad6.Length = 8.4
pad6.Reversed = True

# Sketch on XZ plane
sketch14 = body.newObject("Sketcher::SketchObject", "Sketch013")
sketch14.AttachmentSupport = (doc.getObject("XZ_Plane"), [""])
sketch14.MapMode = "FlatFace"
sketch14.addGeometry(Part.LineSegment(Vector(50, 68.5, 0), Vector(50, 58.5, 0)), False)
sketch14.addGeometry(Part.LineSegment(Vector(50, 58.5, 0), Vector(85, 58.5, 0)), False)
sketch14.addGeometry(Part.LineSegment(Vector(85, 58.5, 0), Vector(85, 68.5, 0)), False)
sketch14.addGeometry(Part.LineSegment(Vector(85, 68.5, 0), Vector(50, 68.5, 0)), False)
sketch14.addConstraint(Sketcher.Constraint("Coincident", 0, 2, 1, 1))
sketch14.addConstraint(Sketcher.Constraint("Coincident", 1, 2, 2, 1))
sketch14.addConstraint(Sketcher.Constraint("Coincident", 2, 2, 3, 1))
sketch14.addConstraint(Sketcher.Constraint("Coincident", 3, 2, 0, 1))
sketch14.addConstraint(Sketcher.Constraint("Vertical", 0))
sketch14.addConstraint(Sketcher.Constraint("Horizontal", 1))
sketch14.addConstraint(Sketcher.Constraint("Vertical", 2))
sketch14.addConstraint(Sketcher.Constraint("Horizontal", 3))
sketch14.addConstraint(Sketcher.Constraint("DistanceX", 1, 1, 1, 2, Q("35 mm")))
sketch14.addConstraint(Sketcher.Constraint("DistanceY", 0, 2, 0, 1, Q("10 mm")))
sketch14.addConstraint(Sketcher.Constraint("DistanceX", -1, 1, 0, 2, Q("50 mm")))
sketch14.addConstraint(Sketcher.Constraint("DistanceY", -1, 1, 0, 2, Q("58.5 mm")))
pad7 = body.newObject("PartDesign::Pad", "Pad006")
pad7.Profile = sketch14
pad7.Length = 5
pad7.Reversed = True

# Sketch on XZ plane
sketch15 = body.newObject("Sketcher::SketchObject", "Sketch014")
sketch15.AttachmentSupport = (doc.getObject("XZ_Plane"), [""])
sketch15.MapMode = "FlatFace"
sketch15.addGeometry(Part.Circle(Vector(67.5, 38.5, 0), Vector(0, 0, 1), 1.63195), False)
sketch15.addGeometry(Part.Circle(Vector(80, 63.5, 0), Vector(0, 0, 1), 1.63195), False)
sketch15.addGeometry(Part.Circle(Vector(55, 63.5, 0), Vector(0, 0, 1), 1.63195), False)
sketch15.addConstraint(Sketcher.Constraint("Equal", 0, 1))
sketch15.addConstraint(Sketcher.Constraint("Equal", 1, 2))
sketch15.addConstraint(Sketcher.Constraint("Horizontal", 1, 3, 2, 3))
sketch15.addConstraint(Sketcher.Constraint("DistanceX", -1, 1, 1, 3, Q("80 mm")))
sketch15.addConstraint(Sketcher.Constraint("DistanceX", -1, 1, 2, 3, Q("55 mm")))
sketch15.addConstraint(Sketcher.Constraint("DistanceY", 0, 3, 1, 3, Q("25 mm")))
sketch15.addConstraint(Sketcher.Constraint("Diameter", 0, Q("3.2639 mm")))
sketch15.addConstraint(Sketcher.Constraint("DistanceX", -1, 1, 0, 3, Q("67.5 mm")))
sketch15.addConstraint(Sketcher.Constraint("DistanceY", -1, 1, 0, 3, Q("38.5 mm")))
doc.recompute()
hole6 = body.newObject("PartDesign::Hole", "Hole005")
hole6.Profile = sketch15
hole6.ThreadType = "None"
hole6.Diameter = 3.2639
hole6.DepthType = "Dimension"
hole6.Depth = 10
hole6.DrillPoint = "Flat"

doc.recompute()
